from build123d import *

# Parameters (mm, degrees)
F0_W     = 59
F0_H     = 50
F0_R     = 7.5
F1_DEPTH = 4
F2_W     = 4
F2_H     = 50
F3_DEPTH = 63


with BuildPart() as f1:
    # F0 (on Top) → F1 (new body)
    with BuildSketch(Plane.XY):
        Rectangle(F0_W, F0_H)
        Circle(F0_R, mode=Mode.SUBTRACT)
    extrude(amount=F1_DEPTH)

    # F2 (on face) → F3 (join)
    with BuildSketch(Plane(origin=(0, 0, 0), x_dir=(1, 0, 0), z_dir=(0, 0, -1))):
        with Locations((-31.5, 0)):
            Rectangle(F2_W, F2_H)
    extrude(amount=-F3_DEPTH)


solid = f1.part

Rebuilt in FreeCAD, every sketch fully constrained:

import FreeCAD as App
import Part
import Sketcher
Q = App.Units.Quantity


def add_polygon(sketch, points):
    """Adds a closed chain of lines whose ends are joined by coincident constraints."""
    first, n = sketch.GeometryCount, len(points)
    for a, b in zip(points, points[1:] + points[:1]):
        sketch.addGeometry(Part.LineSegment(App.Vector(*a, 0), App.Vector(*b, 0)), False)
    for i in range(n):
        sketch.addConstraint(Sketcher.Constraint("Coincident", first + i, 2, first + (i + 1) % n, 1))

doc = App.newDocument("Part")
body = doc.addObject("PartDesign::Body", "Body")

# Sketch on XY plane
sketch1 = body.newObject("Sketcher::SketchObject", "Sketch")
sketch1.AttachmentSupport = (doc.getObject("XY_Plane"), [""])
sketch1.MapMode = "FlatFace"
add_polygon(sketch1, [(-30, 25), (-30, -25), (30, -25), (30, 25)])  # lines 0-3
sketch1.addGeometry(Part.Circle(App.Vector(0, 0, 0), App.Vector(0, 0, 1), 8), False)  # 4
sketch1.addConstraint([
    Sketcher.Constraint("Vertical", 0),
    Sketcher.Constraint("Horizontal", 1),
    Sketcher.Constraint("Vertical", 2),
    Sketcher.Constraint("Horizontal", 3),
    Sketcher.Constraint("Coincident", 4, 3, -1, 1),
    Sketcher.Constraint("Symmetric", 0, 2, 2, 2, -1, 1),
    Sketcher.Constraint("Diameter", 4, Q("15 mm")),
    Sketcher.Constraint("DistanceX", 1, 1, 1, 2, Q("59 mm")),
    Sketcher.Constraint("DistanceY", 0, 2, 0, 1, Q("50 mm")),
])
pad1 = body.newObject("PartDesign::Pad", "Pad")
pad1.Profile = sketch1
pad1.Length = 4

# Sketch on XY plane
sketch2 = body.newObject("Sketcher::SketchObject", "Sketch001")
sketch2.AttachmentSupport = (doc.getObject("XY_Plane"), [""])
sketch2.MapMode = "FlatFace"
add_polygon(sketch2, [(-33.5, -25), (-33.5, 25), (-29.5, 25), (-29.5, -25)])  # lines 0-3
sketch2.addConstraint([
    Sketcher.Constraint("Vertical", 0),
    Sketcher.Constraint("Horizontal", 1),
    Sketcher.Constraint("Vertical", 2),
    Sketcher.Constraint("Horizontal", 3),
    Sketcher.Constraint("DistanceX", 1, 1, 1, 2, Q("4 mm")),
    Sketcher.Constraint("DistanceY", 0, 1, 0, 2, Q("50 mm")),
    Sketcher.Constraint("DistanceY", -1, 1, 0, 2, Q("25 mm")),
    Sketcher.Constraint("DistanceX", 0, 2, -1, 1, Q("33.5 mm")),
])
pad2 = body.newObject("PartDesign::Pad", "Pad001")
pad2.Profile = sketch2
pad2.Length = 63

doc.recompute()
